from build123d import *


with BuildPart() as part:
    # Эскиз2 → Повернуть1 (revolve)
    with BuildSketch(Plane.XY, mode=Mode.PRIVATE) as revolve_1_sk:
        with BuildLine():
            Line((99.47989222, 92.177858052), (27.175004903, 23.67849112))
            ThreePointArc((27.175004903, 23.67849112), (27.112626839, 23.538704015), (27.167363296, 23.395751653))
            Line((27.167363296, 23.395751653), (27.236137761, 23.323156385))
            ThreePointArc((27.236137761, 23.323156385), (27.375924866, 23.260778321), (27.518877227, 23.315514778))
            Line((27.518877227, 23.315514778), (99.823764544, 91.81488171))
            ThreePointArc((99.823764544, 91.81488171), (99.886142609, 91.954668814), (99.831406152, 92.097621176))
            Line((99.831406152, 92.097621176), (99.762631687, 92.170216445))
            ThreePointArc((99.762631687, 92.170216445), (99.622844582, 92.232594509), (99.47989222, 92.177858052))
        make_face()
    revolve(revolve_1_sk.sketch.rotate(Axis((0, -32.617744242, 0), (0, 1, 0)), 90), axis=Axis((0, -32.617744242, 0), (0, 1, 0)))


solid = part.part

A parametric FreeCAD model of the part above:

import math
import FreeCAD as App
import Part
import Sketcher

V = App.Vector

doc = App.newDocument("Part")
body = doc.addObject("PartDesign::Body", "Body")

# Sketch on XY plane
sketch1 = body.newObject("Sketcher::SketchObject", "Sketch")
sketch1.AttachmentSupport = (doc.getObject("XY_Plane"), [""])
sketch1.MapMode = "FlatFace"
sketch1.addGeometry([
    Part.LineSegment(V(99.479892, 92.177858, 0), V(27.175005, 23.678491, 0)),  # 0
    Part.ArcOfCircle(Part.Circle(V(27.312554, 23.533301, 0), V(0, 0, 1), 0.2), math.radians(133.451843), math.radians(223.451842)),  # 1
    Part.LineSegment(V(27.167363, 23.395752, 0), V(27.236138, 23.323156, 0)),  # 2
    Part.ArcOfCircle(Part.Circle(V(27.381328, 23.460705, 0), V(0, 0, 1), 0.2), math.radians(-136.548158), math.radians(-46.548158)),  # 3
    Part.LineSegment(V(27.518877, 23.315515, 0), V(99.823765, 91.814882, 0)),  # 4
    Part.ArcOfCircle(Part.Circle(V(99.686216, 91.960072, 0), V(0, 0, 1), 0.2), math.radians(-46.548158), math.radians(43.451842)),  # 5
    Part.LineSegment(V(99.831406, 92.097621, 0), V(99.762632, 92.170216, 0)),  # 6
    Part.ArcOfCircle(Part.Circle(V(99.617441, 92.032668, 0), V(0, 0, 1), 0.2), math.radians(43.451843), math.radians(133.451842)),  # 7
], False)
sketch1.addConstraint([
    Sketcher.Constraint("Tangent", 0, 2, 1, 1),
    Sketcher.Constraint("Tangent", 1, 2, 2, 1),
    Sketcher.Constraint("Tangent", 2, 2, 3, 1),
    Sketcher.Constraint("Tangent", 3, 2, 4, 1),
    Sketcher.Constraint("Tangent", 4, 2, 5, 1),
    Sketcher.Constraint("Tangent", 5, 2, 6, 1),
    Sketcher.Constraint("Tangent", 6, 2, 7, 1),
    Sketcher.Constraint("Tangent", 7, 2, 0, 1),
    Sketcher.Constraint("Equal", 1, 3),
    Sketcher.Constraint("Equal", 3, 5),
    Sketcher.Constraint("Equal", 5, 7),
    Sketcher.Constraint("Perpendicular", 0, 2),
    Sketcher.Constraint("Parallel", 0, 4),
    Sketcher.Constraint("Perpendicular", 4, 6),
    Sketcher.Constraint("Radius", 1, 0.2),
    Sketcher.Constraint("Distance", 0, 99.6),
    Sketcher.Constraint("Distance", 2, 0.1),
    Sketcher.Constraint("DistanceY", -1, 1, 1, 3, 23.533301),
    Sketcher.Constraint("DistanceX", -1, 1, 3, 3, 27.381328),
    Sketcher.Constraint("DistanceX", -1, 1, 7, 3, 99.617441),
])
revolution = body.newObject("PartDesign::Revolution", "Revolution")
revolution.Profile = sketch1
revolution.ReferenceAxis = (sketch1, ["V_Axis"])
revolution.Angle = 360

doc.recompute()
